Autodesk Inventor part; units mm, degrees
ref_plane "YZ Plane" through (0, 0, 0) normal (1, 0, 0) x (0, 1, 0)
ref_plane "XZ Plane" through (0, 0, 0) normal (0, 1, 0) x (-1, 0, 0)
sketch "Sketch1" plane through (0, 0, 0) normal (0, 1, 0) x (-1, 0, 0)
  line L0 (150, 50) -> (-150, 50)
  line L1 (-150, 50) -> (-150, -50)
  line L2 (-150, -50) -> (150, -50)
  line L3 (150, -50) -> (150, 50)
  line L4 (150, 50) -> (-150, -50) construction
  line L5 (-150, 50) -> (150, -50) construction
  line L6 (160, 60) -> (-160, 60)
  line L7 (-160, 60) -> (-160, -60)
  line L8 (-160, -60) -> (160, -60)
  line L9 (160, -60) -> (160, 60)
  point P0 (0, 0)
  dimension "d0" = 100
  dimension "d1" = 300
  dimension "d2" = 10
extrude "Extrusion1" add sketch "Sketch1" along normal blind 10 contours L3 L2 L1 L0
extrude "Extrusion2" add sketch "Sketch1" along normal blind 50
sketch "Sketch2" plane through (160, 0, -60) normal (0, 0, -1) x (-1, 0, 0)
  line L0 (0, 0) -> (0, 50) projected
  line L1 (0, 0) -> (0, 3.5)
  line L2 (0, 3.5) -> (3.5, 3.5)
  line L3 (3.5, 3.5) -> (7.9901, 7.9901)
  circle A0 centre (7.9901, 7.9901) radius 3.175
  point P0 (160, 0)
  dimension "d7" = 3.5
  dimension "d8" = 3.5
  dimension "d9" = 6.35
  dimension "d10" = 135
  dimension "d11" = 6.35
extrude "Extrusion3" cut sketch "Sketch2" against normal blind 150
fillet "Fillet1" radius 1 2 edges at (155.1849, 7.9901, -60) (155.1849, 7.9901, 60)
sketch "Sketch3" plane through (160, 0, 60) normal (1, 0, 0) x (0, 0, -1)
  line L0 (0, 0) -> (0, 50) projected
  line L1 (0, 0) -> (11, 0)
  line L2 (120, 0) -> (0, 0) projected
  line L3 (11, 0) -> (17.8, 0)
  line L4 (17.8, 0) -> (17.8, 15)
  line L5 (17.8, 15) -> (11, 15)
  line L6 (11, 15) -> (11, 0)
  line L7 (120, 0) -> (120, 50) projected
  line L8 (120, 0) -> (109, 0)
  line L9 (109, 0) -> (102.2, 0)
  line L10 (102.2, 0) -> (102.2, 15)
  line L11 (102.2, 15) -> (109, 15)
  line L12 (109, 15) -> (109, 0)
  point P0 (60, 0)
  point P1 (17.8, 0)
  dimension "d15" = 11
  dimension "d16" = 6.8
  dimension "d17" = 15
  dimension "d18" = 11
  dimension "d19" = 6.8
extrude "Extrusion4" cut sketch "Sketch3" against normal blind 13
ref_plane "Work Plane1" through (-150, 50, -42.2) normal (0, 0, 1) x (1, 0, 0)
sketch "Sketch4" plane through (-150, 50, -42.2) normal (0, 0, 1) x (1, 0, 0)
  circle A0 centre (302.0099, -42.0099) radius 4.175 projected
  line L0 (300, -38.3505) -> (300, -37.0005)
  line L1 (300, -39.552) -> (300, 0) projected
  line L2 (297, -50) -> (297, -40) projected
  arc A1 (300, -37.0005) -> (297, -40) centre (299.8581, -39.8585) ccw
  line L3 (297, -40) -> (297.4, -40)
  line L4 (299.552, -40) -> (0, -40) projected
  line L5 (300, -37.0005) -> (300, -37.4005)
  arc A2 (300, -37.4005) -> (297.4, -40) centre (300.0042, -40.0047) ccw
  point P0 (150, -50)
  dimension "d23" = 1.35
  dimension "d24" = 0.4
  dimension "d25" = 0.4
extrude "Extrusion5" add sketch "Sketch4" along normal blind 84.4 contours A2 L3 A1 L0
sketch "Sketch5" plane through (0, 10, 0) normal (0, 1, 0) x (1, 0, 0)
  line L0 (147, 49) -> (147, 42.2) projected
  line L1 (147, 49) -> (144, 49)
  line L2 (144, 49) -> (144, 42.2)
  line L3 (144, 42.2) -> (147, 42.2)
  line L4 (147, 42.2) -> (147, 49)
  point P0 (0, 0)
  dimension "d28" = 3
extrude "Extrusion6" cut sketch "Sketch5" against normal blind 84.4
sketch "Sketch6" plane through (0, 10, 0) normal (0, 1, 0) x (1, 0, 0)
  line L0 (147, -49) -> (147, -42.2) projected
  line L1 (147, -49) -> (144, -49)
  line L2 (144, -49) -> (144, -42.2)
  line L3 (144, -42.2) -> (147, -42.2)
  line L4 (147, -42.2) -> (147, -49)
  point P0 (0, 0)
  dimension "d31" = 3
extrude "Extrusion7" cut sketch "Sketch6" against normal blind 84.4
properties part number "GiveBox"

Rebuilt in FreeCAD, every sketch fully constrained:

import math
import FreeCAD as App
import Part
import Sketcher
from FreeCAD import Vector
Q = App.Units.Quantity


def edges_at(feature, points):
    """Names of the edges that pass closest to the given points."""
    edges = feature.Shape.Edges
    near = lambda p: min(range(len(edges)), key=lambda i: edges[i].distToShape(Part.Vertex(*p))[0])
    return sorted({f"Edge{near(p) + 1}" for p in points})


def add_polygon(sketch, points):
    """Adds a closed chain of lines whose ends are joined by coincident constraints."""
    first, n = sketch.GeometryCount, len(points)
    for a, b in zip(points, points[1:] + points[:1]):
        sketch.addGeometry(Part.LineSegment(App.Vector(*a, 0), App.Vector(*b, 0)), False)
    for i in range(n):
        sketch.addConstraint(Sketcher.Constraint("Coincident", first + i, 2, first + (i + 1) % n, 1))

doc = App.newDocument("Part")
body = doc.addObject("PartDesign::Body", "Body")

sketch1 = doc.addObject("Sketcher::SketchObject", "Sketch")
body.addObject(sketch1)
sketch1.AttachmentSupport = (doc.XZ_Plane, [""])
sketch1.MapMode = "FlatFace"
add_polygon(sketch1, [(-150, -50), (-150, 50), (150, 50), (150, -50)])
sketch1.addConstraint([
    Sketcher.Constraint("Vertical", 0),
    Sketcher.Constraint("Horizontal", 1),
    Sketcher.Constraint("Vertical", 2),
    Sketcher.Constraint("Horizontal", 3),
    Sketcher.Constraint("Symmetric", 0, 2, 2, 2, -1, 1),
    Sketcher.Constraint("DistanceX", 1, 1, 1, 2, Q("300 mm")),
    Sketcher.Constraint("DistanceY", 0, 1, 0, 2, Q("100 mm")),
])
pad1 = doc.addObject("PartDesign::Pad", "Pad")
body.addObject(pad1)
pad1.Profile = sketch1
pad1.Length = 10
pad1.Reversed = True

sketch2 = doc.addObject("Sketcher::SketchObject", "Sketch001")
body.addObject(sketch2)
sketch2.AttachmentSupport = (doc.XZ_Plane, [""])
sketch2.MapMode = "FlatFace"
add_polygon(sketch2, [(-160, -60), (-160, 60), (160, 60), (160, -60)])
add_polygon(sketch2, [(150, 50), (-150, 50), (-150, -50), (150, -50)])
sketch2.addConstraint([
    Sketcher.Constraint("Vertical", 0),
    Sketcher.Constraint("Horizontal", 1),
    Sketcher.Constraint("Vertical", 2),
    Sketcher.Constraint("Horizontal", 3),
    Sketcher.Constraint("Horizontal", 4),
    Sketcher.Constraint("Vertical", 5),
    Sketcher.Constraint("Horizontal", 6),
    Sketcher.Constraint("Vertical", 7),
    Sketcher.Constraint("Symmetric", 0, 2, 2, 2, -1, 1),
    Sketcher.Constraint("Symmetric", 4, 2, 6, 2, -1, 1),
    Sketcher.Constraint("DistanceX", 4, 2, 4, 1, Q("300 mm")),
    Sketcher.Constraint("DistanceY", 5, 2, 5, 1, Q("100 mm")),
    Sketcher.Constraint("DistanceX", 0, 2, 4, 2, Q("10 mm")),
    Sketcher.Constraint("DistanceY", 4, 2, 0, 2, Q("10 mm")),
])
pad2 = doc.addObject("PartDesign::Pad", "Pad001")
body.addObject(pad2)
pad2.Profile = sketch2
pad2.Length = 50
pad2.Reversed = True

sketch3 = doc.addObject("Sketcher::SketchObject", "Sketch002")
body.addObject(sketch3)
sketch3.AttachmentSupport = (doc.XY_Plane, [""])
sketch3.MapMode = "FlatFace"
sketch3.AttachmentOffset = App.Placement(Vector(0, 0, -60), App.Rotation())
sketch3.addGeometry(Part.Circle(Vector(152, 8, 0), Vector(0, 0, 1), 3.2), False)
sketch3.addConstraint([
    Sketcher.Constraint("Diameter", 0, Q("6.35 mm")),
    Sketcher.Constraint("DistanceX", -1, 1, 0, 3, Q("152.01 mm")),
    Sketcher.Constraint("DistanceY", -1, 1, 0, 3, Q("7.99 mm")),
])
pocket1 = doc.addObject("PartDesign::Pocket", "Pocket")
body.addObject(pocket1)
pocket1.Profile = sketch3
pocket1.Length = 150
pocket1.Reversed = True
doc.recompute()

fillet = doc.addObject("PartDesign::Fillet", "Fillet")
body.addObject(fillet)
fillet.Base = (pocket1, edges_at(pocket1, [(155.185, 7.99, -60), (155.185, 7.99, 60)]))
fillet.Radius = 1

sketch4 = doc.addObject("Sketcher::SketchObject", "Sketch003")
body.addObject(sketch4)
sketch4.AttachmentSupport = (doc.YZ_Plane, [""])
sketch4.MapMode = "FlatFace"
sketch4.AttachmentOffset = App.Placement(Vector(0, 0, 160), App.Rotation())
add_polygon(sketch4, [(0, 49), (0, 42), (15, 42), (15, 49)])
add_polygon(sketch4, [(0, -42), (0, -49), (15, -49), (15, -42)])
sketch4.addConstraint([
    Sketcher.Constraint("Vertical", 0),
    Sketcher.Constraint("Horizontal", 1),
    Sketcher.Constraint("Vertical", 2),
    Sketcher.Constraint("Horizontal", 3),
    Sketcher.Constraint("Vertical", 4),
    Sketcher.Constraint("Horizontal", 5),
    Sketcher.Constraint("Vertical", 6),
    Sketcher.Constraint("Horizontal", 7),
    Sketcher.Constraint("Symmetric", 3, 2, 4, 2, -1, 1),
    Sketcher.Constraint("Symmetric", 1, 2, 6, 2, -1),
    Sketcher.Constraint("PointOnObject", 0, 2, -2),
    Sketcher.Constraint("DistanceX", 1, 1, 1, 2, Q("15 mm")),
    Sketcher.Constraint("DistanceY", 0, 2, 0, 1, Q("6.8 mm")),
    Sketcher.Constraint("DistanceY", -1, 1, 2, 2, Q("49 mm")),
])
pocket2 = doc.addObject("PartDesign::Pocket", "Pocket001")
body.addObject(pocket2)
pocket2.Profile = sketch4
pocket2.Length = 13

sketch5 = doc.addObject("Sketcher::SketchObject", "Sketch004")
body.addObject(sketch5)
sketch5.AttachmentSupport = (doc.XY_Plane, [""])
sketch5.MapMode = "FlatFace"
sketch5.AttachmentOffset = App.Placement(Vector(0, 0, -42.2), App.Rotation())
sketch5.addGeometry([
    Part.ArcOfCircle(Part.Circle(Vector(150, 10, 0), Vector(0, 0, 1), 2.6), math.radians(90), math.radians(180)),
    Part.LineSegment(Vector(150, 12.6, 0), Vector(150, 13, 0)),
    Part.ArcOfCircle(Part.Circle(Vector(149.86, 10.14, 0), Vector(0, 0, 1), 2.86), math.radians(87), math.radians(183)),
    Part.LineSegment(Vector(147, 10, 0), Vector(147.4, 10, 0)),
], False)
sketch5.addConstraint([
    Sketcher.Constraint("Coincident", 0, 1, 1, 1),
    Sketcher.Constraint("Coincident", 1, 2, 2, 1),
    Sketcher.Constraint("Coincident", 2, 2, 3, 1),
    Sketcher.Constraint("Coincident", 3, 2, 0, 2),
    Sketcher.Constraint("Vertical", 1),
    Sketcher.Constraint("Horizontal", 3),
    Sketcher.Constraint("Equal", 3, 1),
    Sketcher.Constraint("DistanceX", 3, 1, 3, 2, Q("0.4 mm")),
    Sketcher.Constraint("DistanceX", -1, 1, 0, 1, Q("150 mm")),
    Sketcher.Constraint("DistanceX", -1, 1, 2, 2, Q("147 mm")),
    Sketcher.Constraint("DistanceY", -1, 1, 2, 2, Q("10 mm")),
    Sketcher.Constraint("Radius", 0, Q("2.6042 mm")),
    Sketcher.Constraint("Radius", 2, Q("2.8615 mm")),
    Sketcher.Constraint("DistanceX", -1, 1, 2, 3, Q("149.858 mm")),
])
pad3 = doc.addObject("PartDesign::Pad", "Pad002")
body.addObject(pad3)
pad3.Profile = sketch5
pad3.Length = 84.4

sketch6 = doc.addObject("Sketcher::SketchObject", "Sketch005")
body.addObject(sketch6)
sketch6.AttachmentSupport = (doc.XZ_Plane, [""])
sketch6.MapMode = "FlatFace"
sketch6.AttachmentOffset = App.Placement(Vector(0, 0, -10), App.Rotation())
add_polygon(sketch6, [(147, -42.2), (147, -49), (144, -49), (144, -42.2)])
sketch6.addConstraint([
    Sketcher.Constraint("Vertical", 0),
    Sketcher.Constraint("Horizontal", 1),
    Sketcher.Constraint("Vertical", 2),
    Sketcher.Constraint("Horizontal", 3),
    Sketcher.Constraint("DistanceX", 1, 2, 1, 1, Q("3 mm")),
    Sketcher.Constraint("DistanceY", 0, 2, 0, 1, Q("6.8 mm")),
    Sketcher.Constraint("DistanceX", -1, 1, 0, 2, Q("147 mm")),
    Sketcher.Constraint("DistanceY", 0, 2, -1, 1, Q("49 mm")),
])
pocket3 = doc.addObject("PartDesign::Pocket", "Pocket002")
body.addObject(pocket3)
pocket3.Profile = sketch6
pocket3.Length = 84.4
pocket3.Reversed = True

sketch7 = doc.addObject("Sketcher::SketchObject", "Sketch006")
body.addObject(sketch7)
sketch7.AttachmentSupport = (doc.XZ_Plane, [""])
sketch7.MapMode = "FlatFace"
sketch7.AttachmentOffset = App.Placement(Vector(0, 0, -10), App.Rotation())
add_polygon(sketch7, [(144, 49), (147, 49), (147, 42.2), (144, 42.2)])
sketch7.addConstraint([
    Sketcher.Constraint("Horizontal", 0),
    Sketcher.Constraint("Vertical", 1),
    Sketcher.Constraint("Horizontal", 2),
    Sketcher.Constraint("Vertical", 3),
    Sketcher.Constraint("DistanceX", 0, 1, 0, 2, Q("3 mm")),
    Sketcher.Constraint("DistanceY", 1, 2, 1, 1, Q("6.8 mm")),
    Sketcher.Constraint("DistanceX", -1, 1, 0, 2, Q("147 mm")),
    Sketcher.Constraint("DistanceY", -1, 1, 0, 2, Q("49 mm")),
])
pocket4 = doc.addObject("PartDesign::Pocket", "Pocket003")
body.addObject(pocket4)
pocket4.Profile = sketch7
pocket4.Length = 84.4
pocket4.Reversed = True

doc.recompute()
